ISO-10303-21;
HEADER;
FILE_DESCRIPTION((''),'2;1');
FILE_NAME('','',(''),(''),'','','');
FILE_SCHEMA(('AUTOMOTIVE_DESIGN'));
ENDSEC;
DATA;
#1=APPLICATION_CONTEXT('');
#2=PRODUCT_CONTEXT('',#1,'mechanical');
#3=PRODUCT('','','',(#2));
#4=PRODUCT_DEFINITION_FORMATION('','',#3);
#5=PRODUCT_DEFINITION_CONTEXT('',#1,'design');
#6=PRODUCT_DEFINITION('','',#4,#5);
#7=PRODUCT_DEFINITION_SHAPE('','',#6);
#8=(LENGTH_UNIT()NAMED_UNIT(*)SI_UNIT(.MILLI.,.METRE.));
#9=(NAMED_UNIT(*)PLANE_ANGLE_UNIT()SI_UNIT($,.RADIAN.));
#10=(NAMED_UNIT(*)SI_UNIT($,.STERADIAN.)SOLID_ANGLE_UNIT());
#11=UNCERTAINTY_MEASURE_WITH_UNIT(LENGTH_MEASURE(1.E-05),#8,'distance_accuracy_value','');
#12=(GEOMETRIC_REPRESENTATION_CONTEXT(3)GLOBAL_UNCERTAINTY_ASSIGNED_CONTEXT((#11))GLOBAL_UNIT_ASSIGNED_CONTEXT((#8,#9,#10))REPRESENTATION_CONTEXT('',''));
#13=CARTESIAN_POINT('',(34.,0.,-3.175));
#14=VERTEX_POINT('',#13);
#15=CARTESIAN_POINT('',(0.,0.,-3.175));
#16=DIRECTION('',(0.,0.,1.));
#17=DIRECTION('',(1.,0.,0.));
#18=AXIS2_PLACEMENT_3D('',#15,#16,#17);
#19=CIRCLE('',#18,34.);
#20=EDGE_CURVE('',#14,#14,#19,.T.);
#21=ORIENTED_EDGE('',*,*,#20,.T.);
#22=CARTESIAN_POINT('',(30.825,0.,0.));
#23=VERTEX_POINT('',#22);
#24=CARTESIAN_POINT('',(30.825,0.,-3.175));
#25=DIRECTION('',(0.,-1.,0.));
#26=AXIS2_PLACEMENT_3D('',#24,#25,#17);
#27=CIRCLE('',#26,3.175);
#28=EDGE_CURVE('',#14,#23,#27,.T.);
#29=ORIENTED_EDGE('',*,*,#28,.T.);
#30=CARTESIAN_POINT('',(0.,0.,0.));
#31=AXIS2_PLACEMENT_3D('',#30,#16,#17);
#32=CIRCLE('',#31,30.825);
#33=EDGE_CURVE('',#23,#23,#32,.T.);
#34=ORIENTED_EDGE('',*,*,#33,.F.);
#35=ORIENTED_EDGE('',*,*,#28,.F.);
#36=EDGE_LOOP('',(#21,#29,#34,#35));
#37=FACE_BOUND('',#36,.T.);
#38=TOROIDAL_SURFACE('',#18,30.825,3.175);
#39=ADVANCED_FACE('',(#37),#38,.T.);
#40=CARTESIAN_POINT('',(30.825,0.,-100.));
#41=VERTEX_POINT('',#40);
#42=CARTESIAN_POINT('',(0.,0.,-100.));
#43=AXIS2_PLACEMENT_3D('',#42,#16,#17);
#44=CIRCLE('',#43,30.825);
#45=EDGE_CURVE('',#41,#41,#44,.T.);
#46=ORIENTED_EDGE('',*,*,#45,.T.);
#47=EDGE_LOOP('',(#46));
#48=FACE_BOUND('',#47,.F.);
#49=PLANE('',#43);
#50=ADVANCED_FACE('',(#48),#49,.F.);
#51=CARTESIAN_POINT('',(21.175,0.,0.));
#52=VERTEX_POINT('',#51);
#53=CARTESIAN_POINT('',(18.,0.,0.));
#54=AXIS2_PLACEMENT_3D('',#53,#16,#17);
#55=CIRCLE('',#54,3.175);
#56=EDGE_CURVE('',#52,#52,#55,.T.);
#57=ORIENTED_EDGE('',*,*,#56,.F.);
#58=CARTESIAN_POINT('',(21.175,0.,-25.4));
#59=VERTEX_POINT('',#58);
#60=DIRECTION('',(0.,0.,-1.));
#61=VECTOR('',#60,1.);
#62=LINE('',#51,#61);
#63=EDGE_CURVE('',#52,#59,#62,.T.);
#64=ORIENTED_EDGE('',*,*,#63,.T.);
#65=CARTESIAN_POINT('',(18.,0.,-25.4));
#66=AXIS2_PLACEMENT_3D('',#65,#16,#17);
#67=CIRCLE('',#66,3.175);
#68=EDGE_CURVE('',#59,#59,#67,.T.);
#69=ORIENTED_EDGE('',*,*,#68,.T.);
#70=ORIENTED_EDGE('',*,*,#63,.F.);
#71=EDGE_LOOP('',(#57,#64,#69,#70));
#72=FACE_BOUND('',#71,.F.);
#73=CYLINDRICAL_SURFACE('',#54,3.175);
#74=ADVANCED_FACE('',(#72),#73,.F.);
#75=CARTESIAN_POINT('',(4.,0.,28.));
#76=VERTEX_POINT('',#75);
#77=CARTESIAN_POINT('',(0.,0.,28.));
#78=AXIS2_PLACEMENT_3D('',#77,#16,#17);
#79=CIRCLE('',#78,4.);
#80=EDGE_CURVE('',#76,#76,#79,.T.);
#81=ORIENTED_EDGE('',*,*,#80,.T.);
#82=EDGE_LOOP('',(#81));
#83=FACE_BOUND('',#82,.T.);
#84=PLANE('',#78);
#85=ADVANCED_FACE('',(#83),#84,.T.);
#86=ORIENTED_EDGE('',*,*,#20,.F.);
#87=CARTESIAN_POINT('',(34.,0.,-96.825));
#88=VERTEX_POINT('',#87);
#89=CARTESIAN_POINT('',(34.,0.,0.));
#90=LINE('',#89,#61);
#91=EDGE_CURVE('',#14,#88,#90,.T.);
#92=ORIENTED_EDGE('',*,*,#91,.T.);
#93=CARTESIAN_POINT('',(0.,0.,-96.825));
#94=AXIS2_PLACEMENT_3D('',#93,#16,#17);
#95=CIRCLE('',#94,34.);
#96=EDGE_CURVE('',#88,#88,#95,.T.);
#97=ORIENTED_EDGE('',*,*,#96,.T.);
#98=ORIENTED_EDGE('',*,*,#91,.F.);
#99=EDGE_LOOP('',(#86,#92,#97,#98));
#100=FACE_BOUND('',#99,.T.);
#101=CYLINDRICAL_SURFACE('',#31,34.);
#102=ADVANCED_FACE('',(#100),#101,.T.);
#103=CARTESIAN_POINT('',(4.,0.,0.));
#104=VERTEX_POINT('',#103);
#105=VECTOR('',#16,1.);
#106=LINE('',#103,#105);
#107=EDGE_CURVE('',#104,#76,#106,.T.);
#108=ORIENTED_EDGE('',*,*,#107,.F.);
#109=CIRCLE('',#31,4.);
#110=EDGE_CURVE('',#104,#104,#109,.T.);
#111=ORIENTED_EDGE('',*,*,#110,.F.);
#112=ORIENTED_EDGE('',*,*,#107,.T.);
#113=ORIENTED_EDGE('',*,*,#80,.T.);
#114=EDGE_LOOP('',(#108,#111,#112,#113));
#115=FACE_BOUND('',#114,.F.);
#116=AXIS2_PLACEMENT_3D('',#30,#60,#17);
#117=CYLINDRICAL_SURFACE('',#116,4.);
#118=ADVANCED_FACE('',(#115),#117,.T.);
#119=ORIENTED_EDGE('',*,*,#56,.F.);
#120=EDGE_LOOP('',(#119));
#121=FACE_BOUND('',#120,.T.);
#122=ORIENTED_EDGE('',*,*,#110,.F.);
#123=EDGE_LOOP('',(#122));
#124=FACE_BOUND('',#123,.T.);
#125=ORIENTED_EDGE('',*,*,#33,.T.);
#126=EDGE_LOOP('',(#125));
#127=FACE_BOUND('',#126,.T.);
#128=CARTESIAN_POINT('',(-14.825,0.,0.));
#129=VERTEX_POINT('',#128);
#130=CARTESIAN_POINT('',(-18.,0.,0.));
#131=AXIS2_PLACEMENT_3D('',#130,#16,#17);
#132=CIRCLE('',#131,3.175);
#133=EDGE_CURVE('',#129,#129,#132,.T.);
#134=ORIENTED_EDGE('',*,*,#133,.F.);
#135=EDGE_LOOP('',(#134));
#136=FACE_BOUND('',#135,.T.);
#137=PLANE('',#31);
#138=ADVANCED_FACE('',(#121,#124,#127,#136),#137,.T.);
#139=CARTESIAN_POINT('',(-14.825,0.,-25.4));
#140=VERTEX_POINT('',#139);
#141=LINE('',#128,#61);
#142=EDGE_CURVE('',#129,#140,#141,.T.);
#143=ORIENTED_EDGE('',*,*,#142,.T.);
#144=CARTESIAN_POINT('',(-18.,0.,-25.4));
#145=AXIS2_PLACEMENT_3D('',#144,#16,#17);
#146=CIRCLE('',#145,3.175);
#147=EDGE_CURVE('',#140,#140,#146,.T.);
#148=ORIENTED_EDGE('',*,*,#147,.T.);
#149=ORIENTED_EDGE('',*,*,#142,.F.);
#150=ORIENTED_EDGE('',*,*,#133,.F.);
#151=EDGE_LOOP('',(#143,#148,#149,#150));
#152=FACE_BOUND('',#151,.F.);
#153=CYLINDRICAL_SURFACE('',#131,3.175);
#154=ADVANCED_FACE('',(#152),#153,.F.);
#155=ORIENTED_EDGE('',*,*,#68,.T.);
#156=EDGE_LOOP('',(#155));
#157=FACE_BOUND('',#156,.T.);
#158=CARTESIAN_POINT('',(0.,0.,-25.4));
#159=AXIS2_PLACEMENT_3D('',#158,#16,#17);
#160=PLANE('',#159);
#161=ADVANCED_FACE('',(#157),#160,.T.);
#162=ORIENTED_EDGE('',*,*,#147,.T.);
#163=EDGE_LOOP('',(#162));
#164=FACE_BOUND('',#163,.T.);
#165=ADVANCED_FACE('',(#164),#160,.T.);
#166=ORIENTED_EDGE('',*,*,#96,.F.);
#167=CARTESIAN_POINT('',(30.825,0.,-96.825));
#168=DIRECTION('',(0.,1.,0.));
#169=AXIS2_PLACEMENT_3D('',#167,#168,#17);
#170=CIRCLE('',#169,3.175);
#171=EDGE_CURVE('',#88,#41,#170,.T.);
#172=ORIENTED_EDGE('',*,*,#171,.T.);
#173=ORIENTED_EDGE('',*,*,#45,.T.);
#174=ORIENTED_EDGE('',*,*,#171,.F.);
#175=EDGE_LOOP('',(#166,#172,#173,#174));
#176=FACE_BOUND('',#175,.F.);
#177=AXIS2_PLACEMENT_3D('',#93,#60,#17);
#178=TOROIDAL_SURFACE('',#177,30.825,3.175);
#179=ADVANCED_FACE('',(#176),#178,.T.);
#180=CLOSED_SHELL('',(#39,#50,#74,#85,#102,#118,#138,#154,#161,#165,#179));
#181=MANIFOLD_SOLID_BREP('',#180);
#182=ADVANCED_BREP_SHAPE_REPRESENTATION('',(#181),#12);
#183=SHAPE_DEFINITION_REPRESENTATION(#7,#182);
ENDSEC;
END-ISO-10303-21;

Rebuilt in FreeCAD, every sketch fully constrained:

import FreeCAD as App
import Part
import Sketcher
from FreeCAD import Vector
Q = App.Units.Quantity


def edges_at(feature, points):
    """Names of the edges that pass closest to the given points."""
    edges = feature.Shape.Edges
    near = lambda p: min(range(len(edges)), key=lambda i: edges[i].distToShape(Part.Vertex(*p))[0])
    return sorted({f"Edge{near(p) + 1}" for p in points})

doc = App.newDocument("Part")
body = doc.addObject("PartDesign::Body", "Body")

# Sketch on XY plane
sketch1 = body.newObject("Sketcher::SketchObject", "Sketch")
sketch1.AttachmentSupport = (doc.getObject("XY_Plane"), [""])
sketch1.MapMode = "FlatFace"
sketch1.addGeometry(Part.Circle(Vector(0, 0, 0), Vector(0, 0, 1), 34), False)
sketch1.addConstraint([
    Sketcher.Constraint("Coincident", 0, 3, -1, 1),
    Sketcher.Constraint("Diameter", 0, Q("68 mm")),
])
pad1 = body.newObject("PartDesign::Pad", "Pad")
pad1.Profile = sketch1
pad1.Length = Q("3.9370079 in")
pad1.Reversed = True

# Sketch on XY plane
sketch2 = body.newObject("Sketcher::SketchObject", "Sketch001")
sketch2.AttachmentSupport = (doc.getObject("XY_Plane"), [""])
sketch2.MapMode = "FlatFace"
sketch2.addGeometry([
    Part.Circle(Vector(-18, 0, 0), Vector(0, 0, 1), 3.2),
    Part.Circle(Vector(18, 0, 0), Vector(0, 0, 1), 3.2),
], False)
sketch2.addConstraint([
    Sketcher.Constraint("Equal", 0, 1),
    Sketcher.Constraint("Symmetric", 0, 3, 1, 3, -1, 1),
    Sketcher.Constraint("PointOnObject", 0, 3, -1),
    Sketcher.Constraint("Diameter", 0, Q("0.25 in")),
    Sketcher.Constraint("DistanceX", 0, 3, -1, 1, Q("18 mm")),
])
pocket1 = body.newObject("PartDesign::Pocket", "Pocket")
pocket1.Profile = sketch2
pocket1.Length = Q("1 in")

# Sketch on XY plane
sketch3 = body.newObject("Sketcher::SketchObject", "Sketch002")
sketch3.AttachmentSupport = (doc.getObject("XY_Plane"), [""])
sketch3.MapMode = "FlatFace"
sketch3.addGeometry(Part.Circle(Vector(0, 0, 0), Vector(0, 0, 1), 4), False)
sketch3.addConstraint([
    Sketcher.Constraint("Coincident", 0, 3, -1, 1),
    Sketcher.Constraint("Diameter", 0, Q("8 mm")),
])
pad2 = body.newObject("PartDesign::Pad", "Pad001")
pad2.Profile = sketch3
pad2.Length = 28
doc.recompute()

fillet = body.newObject("PartDesign::Fillet", "Fillet")
fillet.Base = (pad2, edges_at(pad2, [(-34, 0, 0), (-34, 0, -100)]))
fillet.Radius = Q("0.125 in")

doc.recompute()
